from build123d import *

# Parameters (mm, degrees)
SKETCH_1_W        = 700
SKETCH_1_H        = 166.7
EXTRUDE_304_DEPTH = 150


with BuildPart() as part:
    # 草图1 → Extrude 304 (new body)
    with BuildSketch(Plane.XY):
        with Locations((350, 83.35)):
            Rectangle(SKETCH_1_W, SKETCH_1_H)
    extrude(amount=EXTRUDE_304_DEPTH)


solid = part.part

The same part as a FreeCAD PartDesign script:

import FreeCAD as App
import Part
import Sketcher

V = App.Vector
Q = App.Units.Quantity


def add_polygon(sketch, points):
    """Adds a closed chain of lines whose ends are joined by coincident constraints."""
    first, n = sketch.GeometryCount, len(points)
    for a, b in zip(points, points[1:] + points[:1]):
        sketch.addGeometry(Part.LineSegment(App.Vector(*a, 0), App.Vector(*b, 0)), False)
    for i in range(n):
        sketch.addConstraint(Sketcher.Constraint("Coincident", first + i, 2, first + (i + 1) % n, 1))

doc = App.newDocument("Part")
params = doc.addObject("Spreadsheet::Sheet", "Params")
for row, (alias, value) in enumerate([
    ("sketch1_width", "700 mm"),
    ("sketch1_height", "166.7 mm"),
    ("pad1_length", "150 mm"),
], start=1):
    params.set(f"A{row}", alias)
    params.set(f"B{row}", "=" + value)
    params.setAlias(f"B{row}", alias)

body = doc.addObject("PartDesign::Body", "Body")

# Sketch on XY plane
sketch1 = body.newObject("Sketcher::SketchObject", "Sketch")
sketch1.AttachmentSupport = (doc.getObject("XY_Plane"), [""])
sketch1.MapMode = "FlatFace"
add_polygon(sketch1, [(0, 167), (0, 0), (700, 0), (700, 167)])  # lines 0-3
sketch1.addConstraint(Sketcher.Constraint("Vertical", 0))
sketch1.addConstraint(Sketcher.Constraint("Horizontal", 1))
sketch1.addConstraint(Sketcher.Constraint("Vertical", 2))
sketch1.addConstraint(Sketcher.Constraint("Horizontal", 3))
sketch1.addConstraint(Sketcher.Constraint("Coincident", 0, 2, -1, 1))
sketch1.addConstraint(Sketcher.Constraint("DistanceX", 1, 1, 1, 2, Q("700 mm")))
sketch1.addConstraint(Sketcher.Constraint("DistanceY", 0, 2, 0, 1, Q("166.7 mm")))
sketch1.setExpression("Constraints[9]", "Params.sketch1_width")
sketch1.setExpression("Constraints[10]", "Params.sketch1_height")
pad1 = body.newObject("PartDesign::Pad", "Pad")
pad1.Profile = sketch1
pad1.setExpression("Length", "Params.pad1_length")

doc.recompute()
